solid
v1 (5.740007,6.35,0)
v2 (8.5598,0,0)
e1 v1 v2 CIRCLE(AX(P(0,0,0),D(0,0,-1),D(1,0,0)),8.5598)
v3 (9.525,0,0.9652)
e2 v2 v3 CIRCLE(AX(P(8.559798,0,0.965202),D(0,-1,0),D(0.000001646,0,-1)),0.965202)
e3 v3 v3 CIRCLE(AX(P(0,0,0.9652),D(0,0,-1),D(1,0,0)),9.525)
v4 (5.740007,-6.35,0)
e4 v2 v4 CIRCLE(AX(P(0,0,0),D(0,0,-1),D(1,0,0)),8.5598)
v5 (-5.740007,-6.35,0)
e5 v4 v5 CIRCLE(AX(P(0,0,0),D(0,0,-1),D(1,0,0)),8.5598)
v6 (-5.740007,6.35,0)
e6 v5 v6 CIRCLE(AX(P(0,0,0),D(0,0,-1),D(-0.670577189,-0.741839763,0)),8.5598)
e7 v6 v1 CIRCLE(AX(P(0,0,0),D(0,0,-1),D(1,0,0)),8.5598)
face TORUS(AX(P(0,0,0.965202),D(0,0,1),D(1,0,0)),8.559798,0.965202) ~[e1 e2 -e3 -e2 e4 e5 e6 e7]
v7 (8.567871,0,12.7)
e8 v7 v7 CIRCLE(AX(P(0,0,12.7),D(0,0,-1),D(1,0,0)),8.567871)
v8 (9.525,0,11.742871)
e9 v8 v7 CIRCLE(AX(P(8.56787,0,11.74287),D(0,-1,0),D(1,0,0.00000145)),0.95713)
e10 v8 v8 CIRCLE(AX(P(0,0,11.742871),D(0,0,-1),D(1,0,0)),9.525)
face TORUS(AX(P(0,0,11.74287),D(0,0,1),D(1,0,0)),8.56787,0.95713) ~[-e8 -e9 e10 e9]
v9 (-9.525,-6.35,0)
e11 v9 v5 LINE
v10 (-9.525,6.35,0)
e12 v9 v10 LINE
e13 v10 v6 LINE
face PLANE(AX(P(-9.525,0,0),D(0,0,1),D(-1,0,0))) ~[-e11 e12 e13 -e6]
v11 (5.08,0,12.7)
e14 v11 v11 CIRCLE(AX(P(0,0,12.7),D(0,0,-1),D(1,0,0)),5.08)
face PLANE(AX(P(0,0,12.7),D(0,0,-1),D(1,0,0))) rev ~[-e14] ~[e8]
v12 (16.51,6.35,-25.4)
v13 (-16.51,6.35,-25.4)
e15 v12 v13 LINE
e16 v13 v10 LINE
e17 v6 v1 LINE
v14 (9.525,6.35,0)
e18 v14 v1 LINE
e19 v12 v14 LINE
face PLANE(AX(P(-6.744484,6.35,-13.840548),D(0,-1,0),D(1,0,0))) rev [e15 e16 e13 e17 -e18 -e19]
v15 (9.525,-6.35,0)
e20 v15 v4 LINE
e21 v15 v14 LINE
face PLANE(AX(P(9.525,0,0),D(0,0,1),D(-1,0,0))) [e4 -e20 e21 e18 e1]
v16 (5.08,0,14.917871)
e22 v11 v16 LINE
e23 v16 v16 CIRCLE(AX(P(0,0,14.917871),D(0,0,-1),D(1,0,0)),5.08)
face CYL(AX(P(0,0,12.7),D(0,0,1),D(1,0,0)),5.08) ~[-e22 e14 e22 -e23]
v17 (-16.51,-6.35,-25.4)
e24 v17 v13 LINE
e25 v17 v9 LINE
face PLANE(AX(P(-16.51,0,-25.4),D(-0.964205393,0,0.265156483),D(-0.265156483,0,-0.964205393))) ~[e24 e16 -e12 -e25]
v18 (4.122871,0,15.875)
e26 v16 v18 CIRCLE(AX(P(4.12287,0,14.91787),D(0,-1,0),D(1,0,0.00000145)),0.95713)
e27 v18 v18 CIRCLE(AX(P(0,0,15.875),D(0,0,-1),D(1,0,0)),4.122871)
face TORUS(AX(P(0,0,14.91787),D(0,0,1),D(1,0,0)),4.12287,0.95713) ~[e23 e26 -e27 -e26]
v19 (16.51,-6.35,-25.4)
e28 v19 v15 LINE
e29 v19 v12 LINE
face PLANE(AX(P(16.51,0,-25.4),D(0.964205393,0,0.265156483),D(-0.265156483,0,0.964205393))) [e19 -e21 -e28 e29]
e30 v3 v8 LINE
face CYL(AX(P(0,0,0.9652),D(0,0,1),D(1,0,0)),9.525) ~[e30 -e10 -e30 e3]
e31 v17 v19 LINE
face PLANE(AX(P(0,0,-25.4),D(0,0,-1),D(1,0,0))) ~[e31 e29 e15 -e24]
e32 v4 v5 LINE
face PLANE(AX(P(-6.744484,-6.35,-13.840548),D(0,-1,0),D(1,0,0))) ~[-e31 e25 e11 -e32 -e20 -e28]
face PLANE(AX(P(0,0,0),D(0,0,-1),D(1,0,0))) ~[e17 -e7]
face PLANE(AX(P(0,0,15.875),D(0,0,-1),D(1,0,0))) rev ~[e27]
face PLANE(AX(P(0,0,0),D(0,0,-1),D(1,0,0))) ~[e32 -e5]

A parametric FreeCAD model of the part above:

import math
import FreeCAD as App
import Part
import Sketcher
Q = App.Units.Quantity


def add_polygon(sketch, points):
    """Adds a closed chain of lines whose ends are joined by coincident constraints."""
    first, n = sketch.GeometryCount, len(points)
    for a, b in zip(points, points[1:] + points[:1]):
        sketch.addGeometry(Part.LineSegment(App.Vector(*a, 0), App.Vector(*b, 0)), False)
    for i in range(n):
        sketch.addConstraint(Sketcher.Constraint("Coincident", first + i, 2, first + (i + 1) % n, 1))

doc = App.newDocument("Part")
body = doc.addObject("PartDesign::Body", "Body")

# Sketch on XZ plane
sketch1 = body.newObject("Sketcher::SketchObject", "Sketch")
sketch1.AttachmentSupport = (doc.getObject("XZ_Plane"), [""])
sketch1.MapMode = "FlatFace"
sketch1.addGeometry([
    Part.LineSegment(App.Vector(0, 15.875, 0), App.Vector(0, 0, 0)),  # 0
    Part.LineSegment(App.Vector(0, 0, 0), App.Vector(8.5598, 0, 0)),  # 1
    Part.ArcOfCircle(Part.Circle(App.Vector(8.559798, 0.965202, 0), App.Vector(0, 0, 1), 0.965202), math.radians(-89.999906), math.radians(-0.000094)),  # 2
    Part.LineSegment(App.Vector(9.525, 0.9652, 0), App.Vector(9.525, 11.742871, 0)),  # 3
    Part.ArcOfCircle(Part.Circle(App.Vector(8.56787, 11.74287, 0), App.Vector(0, 0, 1), 0.95713), math.radians(0.000083), math.radians(89.999917)),  # 4
    Part.LineSegment(App.Vector(8.567871, 12.7, 0), App.Vector(5.08, 12.7, 0)),  # 5
    Part.LineSegment(App.Vector(5.08, 12.7, 0), App.Vector(5.08, 14.917871, 0)),  # 6
    Part.ArcOfCircle(Part.Circle(App.Vector(4.12287, 14.91787, 0), App.Vector(0, 0, 1), 0.95713), math.radians(0.000083), math.radians(89.999917)),  # 7
    Part.LineSegment(App.Vector(4.122871, 15.875, 0), App.Vector(0, 15.875, 0)),  # 8
], False)
sketch1.addConstraint([
    Sketcher.Constraint("Coincident", 0, 2, 1, 1),
    Sketcher.Constraint("Tangent", 1, 2, 2, 1),
    Sketcher.Constraint("Tangent", 2, 2, 3, 1),
    Sketcher.Constraint("Tangent", 3, 2, 4, 1),
    Sketcher.Constraint("Tangent", 4, 2, 5, 1),
    Sketcher.Constraint("Coincident", 5, 2, 6, 1),
    Sketcher.Constraint("Tangent", 6, 2, 7, 1),
    Sketcher.Constraint("Tangent", 7, 2, 8, 1),
    Sketcher.Constraint("Coincident", 8, 2, 0, 1),
    Sketcher.Constraint("Vertical", 0),
    Sketcher.Constraint("Horizontal", 1),
    Sketcher.Constraint("Vertical", 3),
    Sketcher.Constraint("Horizontal", 5),
    Sketcher.Constraint("Vertical", 6),
    Sketcher.Constraint("Horizontal", 8),
    Sketcher.Constraint("Coincident", 0, 2, -1, 1),
    Sketcher.Constraint("Equal", 4, 7),
    Sketcher.Constraint("Radius", 2, Q("0.0380001 in")),
    Sketcher.Constraint("DistanceY", -1, 1, 4, 2, Q("0.5 in")),
    Sketcher.Constraint("DistanceX", -1, 1, 5, 2, Q("0.2 in")),
    Sketcher.Constraint("DistanceX", 1, 1, 1, 2, Q("0.337 in")),
    Sketcher.Constraint("DistanceY", 0, 2, 0, 1, Q("0.625 in")),
    Sketcher.Constraint("Radius", 4, 0.95713),
])
revolution = body.newObject("PartDesign::Revolution", "Revolution")
revolution.Profile = sketch1
revolution.ReferenceAxis = (sketch1, ["V_Axis"])
revolution.Angle = 360

# Sketch on XZ plane
sketch2 = body.newObject("Sketcher::SketchObject", "Sketch001")
sketch2.AttachmentSupport = (doc.getObject("XZ_Plane"), [""])
sketch2.MapMode = "FlatFace"
add_polygon(sketch2, [(9.525, 0), (0, 0), (0, -25.4), (16.51, -25.4)])  # lines 0-3
sketch2.addConstraint([
    Sketcher.Constraint("Horizontal", 0),
    Sketcher.Constraint("Vertical", 1),
    Sketcher.Constraint("Horizontal", 2),
    Sketcher.Constraint("Coincident", 0, 2, -1, 1),
    Sketcher.Constraint("DistanceY", 1, 2, 1, 1, Q("1 in")),
    Sketcher.Constraint("DistanceX", 2, 1, 2, 2, Q("0.65 in")),
    Sketcher.Constraint("DistanceX", 0, 2, 0, 1, Q("0.375 in")),
])
pad1 = body.newObject("PartDesign::Pad", "Pad")
pad1.Profile = sketch2
pad1.Length = Q("0.5 in")
pad1.Midplane = True
body2 = doc.addObject("PartDesign::Body", "Body001")
doc.recompute()

body2.BaseFeature = body
doc.recompute()

mirroring = doc.addObject("Part::Mirroring", "Mirroring")
mirroring.Source = body
mirroring.Base = App.Vector(0, 0, 0)
mirroring.Normal = App.Vector(1, 0, 0)
body3 = doc.addObject("PartDesign::Body", "Body002")
body3.BaseFeature = mirroring
boolean = body2.newObject("PartDesign::Boolean", "Boolean")
boolean.Type = "Fuse"
boolean.addObjects([body3])
doc.recompute()
mirroring.Visibility = False

doc.recompute()
